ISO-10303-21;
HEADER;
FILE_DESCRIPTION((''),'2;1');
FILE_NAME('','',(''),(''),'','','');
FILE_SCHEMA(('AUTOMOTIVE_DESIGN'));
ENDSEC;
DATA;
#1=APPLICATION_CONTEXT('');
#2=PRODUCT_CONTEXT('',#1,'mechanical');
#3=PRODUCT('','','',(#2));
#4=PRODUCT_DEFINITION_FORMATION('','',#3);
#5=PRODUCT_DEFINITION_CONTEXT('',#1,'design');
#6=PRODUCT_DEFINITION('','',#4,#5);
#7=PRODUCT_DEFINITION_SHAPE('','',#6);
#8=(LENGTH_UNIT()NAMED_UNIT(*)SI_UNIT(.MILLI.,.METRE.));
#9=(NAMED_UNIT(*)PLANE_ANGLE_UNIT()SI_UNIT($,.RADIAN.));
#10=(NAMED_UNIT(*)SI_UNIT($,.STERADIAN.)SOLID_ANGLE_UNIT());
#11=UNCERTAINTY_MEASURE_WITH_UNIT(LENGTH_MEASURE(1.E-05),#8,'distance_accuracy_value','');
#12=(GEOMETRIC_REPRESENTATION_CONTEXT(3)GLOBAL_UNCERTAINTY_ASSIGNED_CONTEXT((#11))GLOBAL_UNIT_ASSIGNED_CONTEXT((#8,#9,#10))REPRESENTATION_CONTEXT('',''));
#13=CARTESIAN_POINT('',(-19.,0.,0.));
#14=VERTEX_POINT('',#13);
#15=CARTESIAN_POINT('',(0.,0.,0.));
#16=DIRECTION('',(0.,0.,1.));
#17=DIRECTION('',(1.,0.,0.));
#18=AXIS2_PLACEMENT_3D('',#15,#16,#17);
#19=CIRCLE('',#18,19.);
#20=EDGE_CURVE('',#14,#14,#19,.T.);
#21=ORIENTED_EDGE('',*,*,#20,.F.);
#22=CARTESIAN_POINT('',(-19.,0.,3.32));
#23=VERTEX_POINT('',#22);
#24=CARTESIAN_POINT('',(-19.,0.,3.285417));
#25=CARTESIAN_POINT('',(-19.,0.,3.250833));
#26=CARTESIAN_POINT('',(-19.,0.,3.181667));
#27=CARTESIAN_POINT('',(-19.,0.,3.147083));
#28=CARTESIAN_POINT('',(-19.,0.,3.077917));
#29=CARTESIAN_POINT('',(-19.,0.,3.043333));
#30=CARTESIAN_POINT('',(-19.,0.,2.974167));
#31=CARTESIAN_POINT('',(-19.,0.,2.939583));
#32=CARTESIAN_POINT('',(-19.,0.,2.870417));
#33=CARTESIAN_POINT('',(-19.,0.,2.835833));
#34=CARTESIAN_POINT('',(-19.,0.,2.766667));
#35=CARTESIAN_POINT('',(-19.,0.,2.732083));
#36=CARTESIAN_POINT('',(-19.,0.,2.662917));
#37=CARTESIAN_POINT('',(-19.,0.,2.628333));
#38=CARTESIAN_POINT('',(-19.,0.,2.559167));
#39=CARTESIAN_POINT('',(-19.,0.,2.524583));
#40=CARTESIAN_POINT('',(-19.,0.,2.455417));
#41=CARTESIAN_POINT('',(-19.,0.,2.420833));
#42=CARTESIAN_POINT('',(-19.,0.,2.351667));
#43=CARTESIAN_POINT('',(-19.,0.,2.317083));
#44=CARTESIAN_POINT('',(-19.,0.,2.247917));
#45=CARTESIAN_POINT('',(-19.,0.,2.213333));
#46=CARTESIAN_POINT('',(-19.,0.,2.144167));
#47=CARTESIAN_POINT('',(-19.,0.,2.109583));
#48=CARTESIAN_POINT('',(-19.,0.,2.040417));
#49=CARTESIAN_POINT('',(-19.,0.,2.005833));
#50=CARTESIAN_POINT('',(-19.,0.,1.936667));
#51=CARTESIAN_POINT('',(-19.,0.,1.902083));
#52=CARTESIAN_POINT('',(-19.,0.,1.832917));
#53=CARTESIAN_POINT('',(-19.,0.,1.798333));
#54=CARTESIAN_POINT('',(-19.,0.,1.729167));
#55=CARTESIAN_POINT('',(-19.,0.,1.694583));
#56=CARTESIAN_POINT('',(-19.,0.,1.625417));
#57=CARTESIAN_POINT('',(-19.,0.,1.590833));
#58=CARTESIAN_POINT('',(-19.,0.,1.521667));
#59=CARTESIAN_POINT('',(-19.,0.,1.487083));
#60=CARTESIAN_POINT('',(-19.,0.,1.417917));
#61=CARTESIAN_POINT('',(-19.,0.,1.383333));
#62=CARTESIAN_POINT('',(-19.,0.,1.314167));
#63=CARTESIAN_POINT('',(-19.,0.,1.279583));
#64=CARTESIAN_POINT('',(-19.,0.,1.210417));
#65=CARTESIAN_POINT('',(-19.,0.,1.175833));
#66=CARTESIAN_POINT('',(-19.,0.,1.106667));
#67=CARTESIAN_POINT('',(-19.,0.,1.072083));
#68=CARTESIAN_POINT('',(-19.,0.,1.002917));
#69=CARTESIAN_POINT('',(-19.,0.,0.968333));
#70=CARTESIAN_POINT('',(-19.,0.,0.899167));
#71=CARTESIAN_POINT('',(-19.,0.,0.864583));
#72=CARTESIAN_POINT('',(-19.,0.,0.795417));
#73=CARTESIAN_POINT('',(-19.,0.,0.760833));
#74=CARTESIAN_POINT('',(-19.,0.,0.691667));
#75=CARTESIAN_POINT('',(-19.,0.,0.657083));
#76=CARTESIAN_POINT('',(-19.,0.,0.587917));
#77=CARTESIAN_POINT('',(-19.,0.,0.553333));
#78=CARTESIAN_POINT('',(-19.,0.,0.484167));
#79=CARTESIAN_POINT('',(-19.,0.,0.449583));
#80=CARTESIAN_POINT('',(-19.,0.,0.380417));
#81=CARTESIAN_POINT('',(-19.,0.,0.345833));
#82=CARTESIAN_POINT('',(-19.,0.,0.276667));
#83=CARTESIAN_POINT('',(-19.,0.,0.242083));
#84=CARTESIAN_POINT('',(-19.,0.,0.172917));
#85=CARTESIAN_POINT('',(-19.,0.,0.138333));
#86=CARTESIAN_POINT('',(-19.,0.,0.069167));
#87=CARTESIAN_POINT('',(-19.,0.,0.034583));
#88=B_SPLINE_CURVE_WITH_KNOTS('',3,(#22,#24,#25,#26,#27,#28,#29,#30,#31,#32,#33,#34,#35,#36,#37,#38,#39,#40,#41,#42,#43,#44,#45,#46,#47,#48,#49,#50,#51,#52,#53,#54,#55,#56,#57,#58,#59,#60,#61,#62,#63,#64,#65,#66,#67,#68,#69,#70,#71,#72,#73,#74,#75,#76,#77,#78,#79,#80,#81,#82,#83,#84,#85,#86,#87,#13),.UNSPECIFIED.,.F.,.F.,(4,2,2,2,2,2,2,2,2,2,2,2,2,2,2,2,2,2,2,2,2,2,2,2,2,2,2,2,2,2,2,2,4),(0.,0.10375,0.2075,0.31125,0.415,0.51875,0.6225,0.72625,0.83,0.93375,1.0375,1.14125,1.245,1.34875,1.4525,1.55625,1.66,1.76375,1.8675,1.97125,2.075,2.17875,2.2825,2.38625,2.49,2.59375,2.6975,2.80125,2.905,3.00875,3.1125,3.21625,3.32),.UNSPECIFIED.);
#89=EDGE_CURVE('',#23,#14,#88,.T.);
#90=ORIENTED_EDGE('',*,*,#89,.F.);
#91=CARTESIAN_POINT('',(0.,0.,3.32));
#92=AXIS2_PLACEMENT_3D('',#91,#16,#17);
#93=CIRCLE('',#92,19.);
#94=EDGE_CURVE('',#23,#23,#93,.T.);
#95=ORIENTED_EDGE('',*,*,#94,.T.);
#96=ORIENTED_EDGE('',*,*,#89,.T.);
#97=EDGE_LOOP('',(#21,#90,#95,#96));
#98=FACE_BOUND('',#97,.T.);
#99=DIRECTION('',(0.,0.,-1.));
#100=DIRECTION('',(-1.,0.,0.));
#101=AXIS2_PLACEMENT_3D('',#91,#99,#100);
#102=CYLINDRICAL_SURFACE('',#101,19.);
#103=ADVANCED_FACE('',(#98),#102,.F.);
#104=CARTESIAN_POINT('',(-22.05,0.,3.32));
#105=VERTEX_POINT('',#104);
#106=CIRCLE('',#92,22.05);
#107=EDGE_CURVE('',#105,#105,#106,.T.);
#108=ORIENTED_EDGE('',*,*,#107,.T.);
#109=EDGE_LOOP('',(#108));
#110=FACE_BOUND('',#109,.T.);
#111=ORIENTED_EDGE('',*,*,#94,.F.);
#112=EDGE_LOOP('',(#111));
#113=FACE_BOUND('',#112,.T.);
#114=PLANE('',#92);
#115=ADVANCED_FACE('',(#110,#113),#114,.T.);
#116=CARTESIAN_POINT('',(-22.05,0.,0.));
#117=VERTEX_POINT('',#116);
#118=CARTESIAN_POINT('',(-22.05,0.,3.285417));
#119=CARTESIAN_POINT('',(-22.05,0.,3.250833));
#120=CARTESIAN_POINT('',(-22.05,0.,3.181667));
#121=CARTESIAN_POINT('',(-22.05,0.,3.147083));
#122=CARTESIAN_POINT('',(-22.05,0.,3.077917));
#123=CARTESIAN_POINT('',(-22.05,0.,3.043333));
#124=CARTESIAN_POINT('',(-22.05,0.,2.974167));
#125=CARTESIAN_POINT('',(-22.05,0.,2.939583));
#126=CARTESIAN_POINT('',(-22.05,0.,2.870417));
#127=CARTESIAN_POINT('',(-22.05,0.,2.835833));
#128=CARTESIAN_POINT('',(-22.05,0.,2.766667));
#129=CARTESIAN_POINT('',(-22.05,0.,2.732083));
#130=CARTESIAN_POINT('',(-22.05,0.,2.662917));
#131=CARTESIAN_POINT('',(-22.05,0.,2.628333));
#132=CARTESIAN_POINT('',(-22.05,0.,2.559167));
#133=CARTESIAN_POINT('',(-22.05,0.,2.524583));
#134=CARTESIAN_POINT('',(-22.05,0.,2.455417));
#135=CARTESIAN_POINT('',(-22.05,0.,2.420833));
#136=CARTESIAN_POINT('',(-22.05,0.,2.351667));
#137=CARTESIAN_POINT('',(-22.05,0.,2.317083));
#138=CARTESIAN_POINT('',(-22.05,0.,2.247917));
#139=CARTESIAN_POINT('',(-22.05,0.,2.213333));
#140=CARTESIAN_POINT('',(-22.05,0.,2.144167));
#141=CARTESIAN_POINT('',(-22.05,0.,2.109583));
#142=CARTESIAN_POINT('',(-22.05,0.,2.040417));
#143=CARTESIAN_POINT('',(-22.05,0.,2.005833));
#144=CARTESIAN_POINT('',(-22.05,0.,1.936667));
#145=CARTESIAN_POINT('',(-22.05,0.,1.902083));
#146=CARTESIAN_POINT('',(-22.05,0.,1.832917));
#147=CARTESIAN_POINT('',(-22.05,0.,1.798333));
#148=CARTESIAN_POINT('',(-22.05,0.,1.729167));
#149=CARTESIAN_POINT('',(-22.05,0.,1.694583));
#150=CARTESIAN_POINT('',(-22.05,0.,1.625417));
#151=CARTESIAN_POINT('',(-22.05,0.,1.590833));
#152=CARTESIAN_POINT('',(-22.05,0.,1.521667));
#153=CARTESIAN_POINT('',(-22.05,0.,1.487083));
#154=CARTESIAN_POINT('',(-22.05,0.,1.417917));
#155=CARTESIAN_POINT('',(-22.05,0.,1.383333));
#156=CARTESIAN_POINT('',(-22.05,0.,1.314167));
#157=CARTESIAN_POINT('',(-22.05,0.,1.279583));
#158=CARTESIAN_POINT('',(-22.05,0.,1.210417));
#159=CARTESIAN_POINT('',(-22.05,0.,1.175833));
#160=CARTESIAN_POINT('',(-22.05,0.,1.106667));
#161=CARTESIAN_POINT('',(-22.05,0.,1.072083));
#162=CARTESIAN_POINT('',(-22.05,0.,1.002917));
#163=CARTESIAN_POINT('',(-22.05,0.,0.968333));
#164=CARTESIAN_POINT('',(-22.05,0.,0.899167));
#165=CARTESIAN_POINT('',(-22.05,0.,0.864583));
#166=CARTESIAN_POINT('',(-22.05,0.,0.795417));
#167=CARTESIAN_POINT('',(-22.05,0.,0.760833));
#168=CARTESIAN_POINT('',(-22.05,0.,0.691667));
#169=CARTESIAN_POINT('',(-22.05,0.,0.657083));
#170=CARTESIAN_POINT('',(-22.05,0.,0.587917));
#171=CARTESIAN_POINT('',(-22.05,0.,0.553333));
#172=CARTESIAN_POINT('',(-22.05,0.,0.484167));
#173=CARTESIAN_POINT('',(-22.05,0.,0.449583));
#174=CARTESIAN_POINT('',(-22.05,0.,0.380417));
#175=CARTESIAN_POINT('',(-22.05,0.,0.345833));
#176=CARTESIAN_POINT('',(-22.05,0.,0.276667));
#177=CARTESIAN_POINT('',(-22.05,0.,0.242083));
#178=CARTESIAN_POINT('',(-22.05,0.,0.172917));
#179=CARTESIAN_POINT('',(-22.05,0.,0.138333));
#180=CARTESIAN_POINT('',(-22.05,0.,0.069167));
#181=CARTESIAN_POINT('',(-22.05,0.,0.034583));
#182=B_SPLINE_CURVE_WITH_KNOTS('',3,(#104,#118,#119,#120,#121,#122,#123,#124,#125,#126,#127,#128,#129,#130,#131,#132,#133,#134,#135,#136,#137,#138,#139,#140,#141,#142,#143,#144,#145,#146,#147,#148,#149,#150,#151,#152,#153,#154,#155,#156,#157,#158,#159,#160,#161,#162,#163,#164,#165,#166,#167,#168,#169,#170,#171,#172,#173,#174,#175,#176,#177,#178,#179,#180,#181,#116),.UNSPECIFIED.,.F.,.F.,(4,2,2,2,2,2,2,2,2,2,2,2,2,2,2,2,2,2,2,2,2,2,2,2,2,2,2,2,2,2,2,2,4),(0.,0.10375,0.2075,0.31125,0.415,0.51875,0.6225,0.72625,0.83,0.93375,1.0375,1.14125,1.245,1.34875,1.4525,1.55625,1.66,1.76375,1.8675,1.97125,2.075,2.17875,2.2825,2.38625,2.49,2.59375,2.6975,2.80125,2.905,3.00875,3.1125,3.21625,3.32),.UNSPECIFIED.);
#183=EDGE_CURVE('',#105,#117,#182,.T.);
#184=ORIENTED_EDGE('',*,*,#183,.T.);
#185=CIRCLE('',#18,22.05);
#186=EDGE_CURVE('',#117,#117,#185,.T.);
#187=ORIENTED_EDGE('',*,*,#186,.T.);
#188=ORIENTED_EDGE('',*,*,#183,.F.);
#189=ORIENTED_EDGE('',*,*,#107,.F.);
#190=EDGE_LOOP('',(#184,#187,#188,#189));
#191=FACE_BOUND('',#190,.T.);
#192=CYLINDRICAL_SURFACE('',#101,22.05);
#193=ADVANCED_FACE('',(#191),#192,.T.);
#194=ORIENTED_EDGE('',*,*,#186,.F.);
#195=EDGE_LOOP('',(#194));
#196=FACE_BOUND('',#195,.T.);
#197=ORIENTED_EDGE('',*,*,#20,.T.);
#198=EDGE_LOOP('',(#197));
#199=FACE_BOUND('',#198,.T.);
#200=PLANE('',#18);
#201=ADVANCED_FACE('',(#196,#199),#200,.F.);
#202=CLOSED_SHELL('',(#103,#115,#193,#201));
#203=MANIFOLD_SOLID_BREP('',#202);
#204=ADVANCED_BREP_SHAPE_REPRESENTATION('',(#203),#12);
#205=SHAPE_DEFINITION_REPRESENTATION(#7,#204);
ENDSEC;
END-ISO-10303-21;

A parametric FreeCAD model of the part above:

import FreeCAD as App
import Part
import Sketcher

V = App.Vector

doc = App.newDocument("Part")
params = doc.addObject("Spreadsheet::Sheet", "Params")
for row, (alias, value) in enumerate([
    ("sketch1_diameter", "38 mm"),
    ("sketch1_diameter2", "44.1 mm"),
    ("pad1_length", "3.32 mm"),
], start=1):
    params.set(f"A{row}", alias)
    params.set(f"B{row}", "=" + value)
    params.setAlias(f"B{row}", alias)

body = doc.addObject("PartDesign::Body", "Body")

sketch1 = body.newObject("Sketcher::SketchObject", "Sketch")
sketch1.AttachmentSupport = (doc.getObject("XY_Plane"), [""])
sketch1.MapMode = "FlatFace"
sketch1.addGeometry([
    Part.Circle(V(0, 0, 0), V(0, 0, 1), 22.05),
    Part.Circle(V(0, 0, 0), V(0, 0, 1), 19),
], False)
sketch1.addConstraint([
    Sketcher.Constraint("Coincident", 0, 3, -1, 1),
    Sketcher.Constraint("Coincident", 1, 3, -1, 1),
    Sketcher.Constraint("Diameter", 1, 38.0),
    Sketcher.Constraint("Diameter", 0, 44.1),
])
sketch1.setExpression("Constraints[2]", "Params.sketch1_diameter")
sketch1.setExpression("Constraints[3]", "Params.sketch1_diameter2")
pad1 = body.newObject("PartDesign::Pad", "Pad")
pad1.Profile = sketch1
pad1.setExpression("Length", "Params.pad1_length")

doc.recompute()
